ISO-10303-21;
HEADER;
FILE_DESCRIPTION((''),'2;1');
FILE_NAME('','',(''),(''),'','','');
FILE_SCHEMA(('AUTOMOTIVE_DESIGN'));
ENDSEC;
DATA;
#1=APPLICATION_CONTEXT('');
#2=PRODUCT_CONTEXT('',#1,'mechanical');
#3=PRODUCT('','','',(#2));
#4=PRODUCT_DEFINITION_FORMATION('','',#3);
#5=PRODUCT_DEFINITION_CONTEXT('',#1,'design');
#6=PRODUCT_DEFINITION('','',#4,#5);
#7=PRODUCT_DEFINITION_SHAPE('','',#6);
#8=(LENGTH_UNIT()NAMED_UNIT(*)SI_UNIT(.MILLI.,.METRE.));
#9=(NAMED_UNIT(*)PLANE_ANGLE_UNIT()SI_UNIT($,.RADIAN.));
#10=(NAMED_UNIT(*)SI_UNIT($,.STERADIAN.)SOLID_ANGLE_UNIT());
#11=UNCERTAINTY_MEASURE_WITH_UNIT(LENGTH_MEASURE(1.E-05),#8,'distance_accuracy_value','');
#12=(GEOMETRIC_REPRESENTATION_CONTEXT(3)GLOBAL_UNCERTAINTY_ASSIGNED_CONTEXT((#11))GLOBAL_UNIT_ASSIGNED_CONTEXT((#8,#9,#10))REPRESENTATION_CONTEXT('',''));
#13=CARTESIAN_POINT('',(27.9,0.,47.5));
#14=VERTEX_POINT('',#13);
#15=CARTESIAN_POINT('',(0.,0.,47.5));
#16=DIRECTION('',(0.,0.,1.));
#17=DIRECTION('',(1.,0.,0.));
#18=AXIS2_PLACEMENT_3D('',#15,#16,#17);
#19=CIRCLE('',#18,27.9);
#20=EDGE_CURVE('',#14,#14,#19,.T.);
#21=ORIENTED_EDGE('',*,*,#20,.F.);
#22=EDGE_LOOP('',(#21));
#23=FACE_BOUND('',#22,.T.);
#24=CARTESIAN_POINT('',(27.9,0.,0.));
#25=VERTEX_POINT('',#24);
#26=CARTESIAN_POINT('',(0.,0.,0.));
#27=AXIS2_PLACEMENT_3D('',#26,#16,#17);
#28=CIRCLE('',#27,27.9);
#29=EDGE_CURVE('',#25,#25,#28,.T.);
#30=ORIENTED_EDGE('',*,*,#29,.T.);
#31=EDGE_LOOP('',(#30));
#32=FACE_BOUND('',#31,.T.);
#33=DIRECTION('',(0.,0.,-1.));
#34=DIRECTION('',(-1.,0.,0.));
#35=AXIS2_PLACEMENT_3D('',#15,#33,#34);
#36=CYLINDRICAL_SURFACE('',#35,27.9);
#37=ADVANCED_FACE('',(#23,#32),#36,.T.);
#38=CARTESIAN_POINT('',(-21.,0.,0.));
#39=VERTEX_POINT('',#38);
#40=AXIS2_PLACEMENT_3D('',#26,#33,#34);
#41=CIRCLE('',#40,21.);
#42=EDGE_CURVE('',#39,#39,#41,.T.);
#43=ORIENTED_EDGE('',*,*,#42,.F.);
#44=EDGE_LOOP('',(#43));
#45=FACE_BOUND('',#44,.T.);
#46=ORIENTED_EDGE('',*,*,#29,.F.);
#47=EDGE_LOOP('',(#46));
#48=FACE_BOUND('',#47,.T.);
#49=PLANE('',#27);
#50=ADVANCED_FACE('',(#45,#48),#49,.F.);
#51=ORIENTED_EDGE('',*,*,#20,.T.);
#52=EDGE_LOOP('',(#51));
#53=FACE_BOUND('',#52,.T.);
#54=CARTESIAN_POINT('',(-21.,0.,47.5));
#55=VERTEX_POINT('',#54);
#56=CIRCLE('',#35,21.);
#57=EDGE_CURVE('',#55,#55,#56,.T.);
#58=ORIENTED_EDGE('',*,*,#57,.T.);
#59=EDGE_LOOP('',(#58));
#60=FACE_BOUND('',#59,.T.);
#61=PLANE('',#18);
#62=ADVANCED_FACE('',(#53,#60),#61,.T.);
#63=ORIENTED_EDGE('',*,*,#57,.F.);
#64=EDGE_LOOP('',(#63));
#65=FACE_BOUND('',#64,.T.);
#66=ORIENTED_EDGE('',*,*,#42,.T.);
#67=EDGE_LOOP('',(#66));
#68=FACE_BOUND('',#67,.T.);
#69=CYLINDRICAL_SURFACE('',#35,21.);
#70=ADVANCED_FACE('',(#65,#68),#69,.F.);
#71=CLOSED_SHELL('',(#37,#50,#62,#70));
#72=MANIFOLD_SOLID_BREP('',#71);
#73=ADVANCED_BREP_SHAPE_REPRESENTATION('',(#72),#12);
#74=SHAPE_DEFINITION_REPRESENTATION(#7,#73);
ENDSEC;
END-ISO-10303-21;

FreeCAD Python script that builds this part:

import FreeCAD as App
import Part
import Sketcher

V = App.Vector
Q = App.Units.Quantity

doc = App.newDocument("Part")
body = doc.addObject("PartDesign::Body", "Body")

# Sketch on XY plane
sketch1 = body.newObject("Sketcher::SketchObject", "Sketch")
sketch1.AttachmentSupport = (doc.getObject("XY_Plane"), [""])
sketch1.MapMode = "FlatFace"
sketch1.addGeometry(Part.Circle(V(0, 0, 0), V(0, 0, 1), 28), False)
sketch1.addConstraint(Sketcher.Constraint("Coincident", 0, 3, -1, 1))
sketch1.addConstraint(Sketcher.Constraint("Diameter", 0, Q("55.8 mm")))
pad1 = body.newObject("PartDesign::Pad", "Pad")
pad1.Profile = sketch1
pad1.Length = 47.5

# Sketch on XY plane
sketch2 = body.newObject("Sketcher::SketchObject", "Sketch001")
sketch2.AttachmentSupport = (doc.getObject("XY_Plane"), [""])
sketch2.MapMode = "FlatFace"
sketch2.addGeometry(Part.Circle(V(0, 0, 0), V(0, 0, 1), 21), False)
sketch2.addConstraint(Sketcher.Constraint("Coincident", 0, 3, -1, 1))
sketch2.addConstraint(Sketcher.Constraint("Diameter", 0, Q("42 mm")))
pocket1 = body.newObject("PartDesign::Pocket", "Pocket")
pocket1.Profile = sketch2
pocket1.Length = 47.5
pocket1.Reversed = True

doc.recompute()
